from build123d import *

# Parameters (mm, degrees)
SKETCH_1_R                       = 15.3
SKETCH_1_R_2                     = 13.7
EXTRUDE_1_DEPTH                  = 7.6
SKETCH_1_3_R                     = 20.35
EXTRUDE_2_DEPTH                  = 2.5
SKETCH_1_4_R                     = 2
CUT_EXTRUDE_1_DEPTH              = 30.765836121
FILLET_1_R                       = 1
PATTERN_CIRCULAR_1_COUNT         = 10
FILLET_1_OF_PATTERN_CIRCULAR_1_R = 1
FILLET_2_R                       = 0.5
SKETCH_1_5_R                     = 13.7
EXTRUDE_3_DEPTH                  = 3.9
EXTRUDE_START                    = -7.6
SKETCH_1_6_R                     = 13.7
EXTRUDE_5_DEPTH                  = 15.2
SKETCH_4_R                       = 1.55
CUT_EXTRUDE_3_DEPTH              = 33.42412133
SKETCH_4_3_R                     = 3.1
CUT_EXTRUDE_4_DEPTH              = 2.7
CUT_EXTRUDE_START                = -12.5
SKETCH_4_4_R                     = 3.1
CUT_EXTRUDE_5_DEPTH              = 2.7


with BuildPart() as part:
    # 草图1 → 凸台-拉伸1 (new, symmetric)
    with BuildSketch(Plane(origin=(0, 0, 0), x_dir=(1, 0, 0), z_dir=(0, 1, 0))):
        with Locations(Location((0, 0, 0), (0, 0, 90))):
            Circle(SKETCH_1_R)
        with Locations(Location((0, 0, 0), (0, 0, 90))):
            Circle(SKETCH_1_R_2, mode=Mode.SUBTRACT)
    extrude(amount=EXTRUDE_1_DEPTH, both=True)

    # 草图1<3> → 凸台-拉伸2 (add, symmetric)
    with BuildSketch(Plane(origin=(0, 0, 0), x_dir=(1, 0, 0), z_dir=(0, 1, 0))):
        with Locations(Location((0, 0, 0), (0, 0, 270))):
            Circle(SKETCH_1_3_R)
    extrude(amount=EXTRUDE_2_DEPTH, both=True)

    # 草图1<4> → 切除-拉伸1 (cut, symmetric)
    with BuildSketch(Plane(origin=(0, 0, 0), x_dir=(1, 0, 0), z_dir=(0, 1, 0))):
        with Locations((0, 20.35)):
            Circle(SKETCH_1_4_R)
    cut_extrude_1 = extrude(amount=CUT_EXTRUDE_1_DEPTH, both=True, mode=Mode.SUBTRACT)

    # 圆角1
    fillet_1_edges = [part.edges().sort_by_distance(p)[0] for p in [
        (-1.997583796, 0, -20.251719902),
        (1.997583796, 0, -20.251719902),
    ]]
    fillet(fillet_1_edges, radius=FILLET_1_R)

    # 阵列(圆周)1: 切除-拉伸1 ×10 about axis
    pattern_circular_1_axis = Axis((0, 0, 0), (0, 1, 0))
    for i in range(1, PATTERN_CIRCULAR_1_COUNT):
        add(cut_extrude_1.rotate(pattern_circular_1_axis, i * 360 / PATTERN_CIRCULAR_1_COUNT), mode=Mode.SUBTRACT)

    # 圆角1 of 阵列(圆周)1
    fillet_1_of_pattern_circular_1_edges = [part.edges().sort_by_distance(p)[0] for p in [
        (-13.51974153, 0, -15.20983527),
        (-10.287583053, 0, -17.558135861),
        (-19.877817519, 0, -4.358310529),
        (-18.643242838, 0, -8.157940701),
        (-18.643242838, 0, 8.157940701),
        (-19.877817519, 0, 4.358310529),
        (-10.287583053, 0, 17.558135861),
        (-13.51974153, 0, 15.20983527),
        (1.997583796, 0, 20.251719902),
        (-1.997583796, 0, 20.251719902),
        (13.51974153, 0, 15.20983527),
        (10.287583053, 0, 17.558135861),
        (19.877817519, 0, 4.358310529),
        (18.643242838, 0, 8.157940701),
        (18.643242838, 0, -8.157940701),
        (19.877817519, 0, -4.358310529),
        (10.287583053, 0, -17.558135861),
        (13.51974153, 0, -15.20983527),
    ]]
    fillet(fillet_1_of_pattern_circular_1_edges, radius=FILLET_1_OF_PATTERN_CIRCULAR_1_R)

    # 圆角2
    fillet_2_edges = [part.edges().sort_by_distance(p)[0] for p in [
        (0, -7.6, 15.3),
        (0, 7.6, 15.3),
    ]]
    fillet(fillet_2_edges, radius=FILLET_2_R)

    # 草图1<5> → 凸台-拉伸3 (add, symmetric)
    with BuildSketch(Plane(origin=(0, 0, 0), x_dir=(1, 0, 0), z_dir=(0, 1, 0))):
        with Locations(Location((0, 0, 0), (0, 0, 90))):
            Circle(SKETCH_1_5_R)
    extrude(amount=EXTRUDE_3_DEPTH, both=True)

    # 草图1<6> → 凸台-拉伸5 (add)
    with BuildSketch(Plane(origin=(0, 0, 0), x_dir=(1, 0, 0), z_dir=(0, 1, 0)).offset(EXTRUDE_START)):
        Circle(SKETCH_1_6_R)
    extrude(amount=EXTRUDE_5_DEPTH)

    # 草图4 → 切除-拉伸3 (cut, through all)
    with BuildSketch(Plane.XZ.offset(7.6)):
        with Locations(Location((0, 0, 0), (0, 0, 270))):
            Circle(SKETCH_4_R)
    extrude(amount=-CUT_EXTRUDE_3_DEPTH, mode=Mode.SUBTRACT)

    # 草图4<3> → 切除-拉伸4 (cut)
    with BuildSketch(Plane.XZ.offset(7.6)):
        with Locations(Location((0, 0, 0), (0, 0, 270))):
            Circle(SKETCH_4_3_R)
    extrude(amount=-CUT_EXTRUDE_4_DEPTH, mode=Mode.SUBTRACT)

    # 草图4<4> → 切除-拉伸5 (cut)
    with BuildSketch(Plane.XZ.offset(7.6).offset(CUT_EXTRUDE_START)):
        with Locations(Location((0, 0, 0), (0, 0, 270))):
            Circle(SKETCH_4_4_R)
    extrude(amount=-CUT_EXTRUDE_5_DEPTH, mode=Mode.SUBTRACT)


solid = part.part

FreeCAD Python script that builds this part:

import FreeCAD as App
import Part
import Sketcher
from FreeCAD import Vector
Q = App.Units.Quantity


def edges_at(feature, points):
    """Names of the edges that pass closest to the given points."""
    edges = feature.Shape.Edges
    near = lambda p: min(range(len(edges)), key=lambda i: edges[i].distToShape(Part.Vertex(*p))[0])
    return sorted({f"Edge{near(p) + 1}" for p in points})

doc = App.newDocument("Part")
body = doc.addObject("PartDesign::Body", "Body")

# Sketch on XZ plane
sketch1 = body.newObject("Sketcher::SketchObject", "Sketch")
sketch1.AttachmentSupport = (doc.getObject("XZ_Plane"), [""])
sketch1.MapMode = "FlatFace"
sketch1.addGeometry([
    Part.Circle(Vector(0, 0, 0), Vector(0, 0, 1), 15.3),
    Part.Circle(Vector(0, 0, 0), Vector(0, 0, 1), 13.7),
], False)
sketch1.addConstraint([
    Sketcher.Constraint("Coincident", 0, 3, -1, 1),
    Sketcher.Constraint("Coincident", 1, 3, -1, 1),
    Sketcher.Constraint("Diameter", 0, Q("30.6 mm")),
    Sketcher.Constraint("Diameter", 1, Q("27.4 mm")),
])
pad1 = body.newObject("PartDesign::Pad", "Pad")
pad1.Profile = sketch1
pad1.Length = 15.2
pad1.Midplane = True

# Sketch on XZ plane
sketch2 = body.newObject("Sketcher::SketchObject", "Sketch001")
sketch2.AttachmentSupport = (doc.getObject("XZ_Plane"), [""])
sketch2.MapMode = "FlatFace"
sketch2.addGeometry(Part.Circle(Vector(0, 0, 0), Vector(0, 0, 1), 20.35), False)
sketch2.addConstraint([
    Sketcher.Constraint("Coincident", 0, 3, -1, 1),
    Sketcher.Constraint("Diameter", 0, Q("40.7 mm")),
])
pad2 = body.newObject("PartDesign::Pad", "Pad001")
pad2.Profile = sketch2
pad2.Length = 5
pad2.Midplane = True

# Sketch on XZ plane
sketch3 = body.newObject("Sketcher::SketchObject", "Sketch002")
sketch3.AttachmentSupport = (doc.getObject("XZ_Plane"), [""])
sketch3.MapMode = "FlatFace"
sketch3.addGeometry(Part.Circle(Vector(0, -20.35, 0), Vector(0, 0, 1), 2), False)
sketch3.addConstraint([
    Sketcher.Constraint("PointOnObject", 0, 3, -2),
    Sketcher.Constraint("Diameter", 0, Q("4 mm")),
    Sketcher.Constraint("DistanceY", 0, 3, -1, 1, Q("20.35 mm")),
])
pocket1 = body.newObject("PartDesign::Pocket", "Pocket")
pocket1.Profile = sketch3
pocket1.Length = 61.531672
pocket1.Midplane = True
doc.recompute()

fillet = body.newObject("PartDesign::Fillet", "Fillet")
fillet.Base = (pocket1, edges_at(pocket1, [(-1.998, 0, -20.252), (1.998, 0, -20.252)]))
fillet.Radius = 1
doc.recompute()

polarpattern = body.newObject("PartDesign::PolarPattern", "PolarPattern")
polarpattern.Originals = [pocket1]
polarpattern.Axis = (doc.getObject("Y_Axis"), [""])
polarpattern.Angle = 360
polarpattern.Occurrences = 10
body.Tip = polarpattern
doc.recompute()

fillet2 = body.newObject("PartDesign::Fillet", "Fillet001")
fillet2.Base = (polarpattern, edges_at(polarpattern, [
    (-13.52, 0, -15.21),
    (-10.288, 0, -17.558),
    (-19.878, 0, -4.358),
    (-18.643, 0, -8.158),
    (-18.643, 0, 8.158),
    (-19.878, 0, 4.358),
    (-10.288, 0, 17.558),
    (-13.52, 0, 15.21),
    (1.998, 0, 20.252),
    (-1.998, 0, 20.252),
    (13.52, 0, 15.21),
    (10.288, 0, 17.558),
    (19.878, 0, 4.358),
    (18.643, 0, 8.158),
    (18.643, 0, -8.158),
    (19.878, 0, -4.358),
    (10.288, 0, -17.558),
    (13.52, 0, -15.21),
]))
fillet2.Radius = 1
doc.recompute()

fillet3 = body.newObject("PartDesign::Fillet", "Fillet002")
fillet3.Base = (fillet2, edges_at(fillet2, [(0, -7.6, 15.3), (0, 7.6, 15.3)]))
fillet3.Radius = 0.5

# Sketch on XZ plane
sketch4 = body.newObject("Sketcher::SketchObject", "Sketch003")
sketch4.AttachmentSupport = (doc.getObject("XZ_Plane"), [""])
sketch4.MapMode = "FlatFace"
sketch4.addGeometry(Part.Circle(Vector(0, 0, 0), Vector(0, 0, 1), 13.7), False)
sketch4.addConstraint([
    Sketcher.Constraint("Coincident", 0, 3, -1, 1),
    Sketcher.Constraint("Diameter", 0, Q("27.4 mm")),
])
pad3 = body.newObject("PartDesign::Pad", "Pad002")
pad3.Profile = sketch4
pad3.Length = 7.8
pad3.Midplane = True

# Sketch on XZ plane
sketch5 = body.newObject("Sketcher::SketchObject", "Sketch004")
sketch5.AttachmentSupport = (doc.getObject("XZ_Plane"), [""])
sketch5.MapMode = "FlatFace"
sketch5.AttachmentOffset = App.Placement(Vector(0, 0, 7.6), App.Rotation())
sketch5.addGeometry(Part.Circle(Vector(0, 0, 0), Vector(0, 0, 1), 13.7), False)
sketch5.addConstraint([
    Sketcher.Constraint("Coincident", 0, 3, -1, 1),
    Sketcher.Constraint("Diameter", 0, Q("27.4 mm")),
])
pad4 = body.newObject("PartDesign::Pad", "Pad003")
pad4.Profile = sketch5
pad4.Length = 15.2
pad4.Reversed = True

# Sketch on XZ plane
sketch6 = body.newObject("Sketcher::SketchObject", "Sketch005")
sketch6.AttachmentSupport = (doc.getObject("XZ_Plane"), [""])
sketch6.MapMode = "FlatFace"
sketch6.AttachmentOffset = App.Placement(Vector(0, 0, 7.6), App.Rotation())
sketch6.addGeometry(Part.Circle(Vector(0, 0, 0), Vector(0, 0, 1), 1.55), False)
sketch6.addConstraint([
    Sketcher.Constraint("Coincident", 0, 3, -1, 1),
    Sketcher.Constraint("Diameter", 0, Q("3.1 mm")),
])
pocket2 = body.newObject("PartDesign::Pocket", "Pocket001")
pocket2.Profile = sketch6
pocket2.Type = "ThroughAll"

# Sketch on XZ plane
sketch7 = body.newObject("Sketcher::SketchObject", "Sketch006")
sketch7.AttachmentSupport = (doc.getObject("XZ_Plane"), [""])
sketch7.MapMode = "FlatFace"
sketch7.AttachmentOffset = App.Placement(Vector(0, 0, 7.6), App.Rotation())
sketch7.addGeometry(Part.Circle(Vector(0, 0, 0), Vector(0, 0, 1), 3.1), False)
sketch7.addConstraint([
    Sketcher.Constraint("Coincident", 0, 3, -1, 1),
    Sketcher.Constraint("Diameter", 0, Q("6.2 mm")),
])
pocket3 = body.newObject("PartDesign::Pocket", "Pocket002")
pocket3.Profile = sketch7
pocket3.Length = 2.7

# Sketch on XZ plane
sketch8 = body.newObject("Sketcher::SketchObject", "Sketch007")
sketch8.AttachmentSupport = (doc.getObject("XZ_Plane"), [""])
sketch8.MapMode = "FlatFace"
sketch8.AttachmentOffset = App.Placement(Vector(0, 0, -4.9), App.Rotation())
sketch8.addGeometry(Part.Circle(Vector(0, 0, 0), Vector(0, 0, 1), 3.1), False)
sketch8.addConstraint([
    Sketcher.Constraint("Coincident", 0, 3, -1, 1),
    Sketcher.Constraint("Diameter", 0, Q("6.2 mm")),
])
pocket4 = body.newObject("PartDesign::Pocket", "Pocket003")
pocket4.Profile = sketch8
pocket4.Length = 2.7

doc.recompute()
